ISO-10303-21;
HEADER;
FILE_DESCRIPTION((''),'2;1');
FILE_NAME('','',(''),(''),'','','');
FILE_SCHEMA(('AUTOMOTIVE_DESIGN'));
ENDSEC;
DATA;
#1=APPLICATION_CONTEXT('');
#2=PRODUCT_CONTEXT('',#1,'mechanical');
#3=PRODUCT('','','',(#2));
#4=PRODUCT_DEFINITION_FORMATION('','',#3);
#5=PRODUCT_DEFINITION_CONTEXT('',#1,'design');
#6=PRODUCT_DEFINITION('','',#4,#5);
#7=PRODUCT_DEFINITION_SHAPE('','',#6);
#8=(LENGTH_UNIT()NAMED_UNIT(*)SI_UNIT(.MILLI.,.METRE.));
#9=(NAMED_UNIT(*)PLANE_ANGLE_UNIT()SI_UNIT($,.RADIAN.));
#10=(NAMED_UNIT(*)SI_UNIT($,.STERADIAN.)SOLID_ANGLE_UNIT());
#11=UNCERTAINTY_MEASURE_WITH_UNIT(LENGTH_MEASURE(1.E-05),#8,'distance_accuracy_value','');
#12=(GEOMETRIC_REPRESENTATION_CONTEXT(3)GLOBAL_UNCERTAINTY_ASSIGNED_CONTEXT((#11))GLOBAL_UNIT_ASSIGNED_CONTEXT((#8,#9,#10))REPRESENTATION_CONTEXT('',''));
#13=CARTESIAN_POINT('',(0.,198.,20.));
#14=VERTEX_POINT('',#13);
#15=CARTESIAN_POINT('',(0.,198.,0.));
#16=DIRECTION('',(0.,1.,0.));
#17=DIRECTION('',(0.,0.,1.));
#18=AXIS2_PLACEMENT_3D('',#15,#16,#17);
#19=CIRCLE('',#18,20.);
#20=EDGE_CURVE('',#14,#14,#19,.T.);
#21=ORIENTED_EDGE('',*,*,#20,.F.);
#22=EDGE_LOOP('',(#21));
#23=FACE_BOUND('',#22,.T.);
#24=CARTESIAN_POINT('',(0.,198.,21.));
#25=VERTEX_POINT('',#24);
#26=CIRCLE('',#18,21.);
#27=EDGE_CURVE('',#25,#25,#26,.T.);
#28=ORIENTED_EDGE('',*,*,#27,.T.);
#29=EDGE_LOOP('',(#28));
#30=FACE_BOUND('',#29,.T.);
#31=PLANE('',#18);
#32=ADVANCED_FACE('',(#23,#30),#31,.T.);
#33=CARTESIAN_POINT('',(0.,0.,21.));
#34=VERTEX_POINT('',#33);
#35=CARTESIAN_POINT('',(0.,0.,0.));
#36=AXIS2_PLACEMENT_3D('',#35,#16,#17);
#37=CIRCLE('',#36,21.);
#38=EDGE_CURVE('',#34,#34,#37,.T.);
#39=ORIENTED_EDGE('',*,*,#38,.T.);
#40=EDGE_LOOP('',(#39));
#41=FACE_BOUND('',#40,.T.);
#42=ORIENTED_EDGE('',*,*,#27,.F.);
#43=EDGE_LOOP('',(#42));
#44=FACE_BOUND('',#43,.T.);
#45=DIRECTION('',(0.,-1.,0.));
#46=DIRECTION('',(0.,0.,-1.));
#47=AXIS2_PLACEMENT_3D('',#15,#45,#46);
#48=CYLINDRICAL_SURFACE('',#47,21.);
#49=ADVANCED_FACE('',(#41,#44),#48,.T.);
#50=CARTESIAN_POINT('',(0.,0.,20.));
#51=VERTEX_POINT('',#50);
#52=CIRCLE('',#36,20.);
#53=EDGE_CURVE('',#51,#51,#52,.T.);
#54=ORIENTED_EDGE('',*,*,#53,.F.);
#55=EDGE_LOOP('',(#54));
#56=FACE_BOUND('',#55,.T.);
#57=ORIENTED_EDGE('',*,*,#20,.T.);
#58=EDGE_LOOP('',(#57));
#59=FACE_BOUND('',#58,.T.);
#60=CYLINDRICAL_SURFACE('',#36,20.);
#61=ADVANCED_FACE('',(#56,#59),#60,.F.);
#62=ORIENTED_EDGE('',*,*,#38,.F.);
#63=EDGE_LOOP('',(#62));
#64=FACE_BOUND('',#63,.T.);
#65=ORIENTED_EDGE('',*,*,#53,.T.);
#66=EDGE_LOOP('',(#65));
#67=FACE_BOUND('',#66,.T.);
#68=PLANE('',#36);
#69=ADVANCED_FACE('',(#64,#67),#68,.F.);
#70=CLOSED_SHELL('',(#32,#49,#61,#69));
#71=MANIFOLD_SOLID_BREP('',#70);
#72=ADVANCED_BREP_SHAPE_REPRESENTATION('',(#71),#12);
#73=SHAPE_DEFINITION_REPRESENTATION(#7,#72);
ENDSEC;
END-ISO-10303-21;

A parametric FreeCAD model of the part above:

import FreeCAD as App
import Part
import Sketcher

V = App.Vector
Q = App.Units.Quantity

doc = App.newDocument("Part")
params = doc.addObject("Spreadsheet::Sheet", "Params")
for row, (alias, value) in enumerate([
    ("sketch1_diameter", "42 mm"),
    ("pad1_length", "198 mm"),
    ("sketch2_diameter", "40 mm"),
    ("pocket1_length", "198 mm"),
], start=1):
    params.set(f"A{row}", alias)
    params.set(f"B{row}", "=" + value)
    params.setAlias(f"B{row}", alias)

body = doc.addObject("PartDesign::Body", "Body")

# Sketch on XZ plane
sketch1 = body.newObject("Sketcher::SketchObject", "Sketch")
sketch1.AttachmentSupport = (doc.getObject("XZ_Plane"), [""])
sketch1.MapMode = "FlatFace"
sketch1.addGeometry(Part.Circle(V(0, 0, 0), V(0, 0, 1), 21), False)
sketch1.addConstraint([
    Sketcher.Constraint("Coincident", 0, 3, -1, 1),
    Sketcher.Constraint("Diameter", 0, Q("42 mm")),
])
sketch1.setExpression("Constraints[1]", "Params.sketch1_diameter")
pad1 = body.newObject("PartDesign::Pad", "Pad")
pad1.Profile = sketch1
pad1.setExpression("Length", "Params.pad1_length")
pad1.Reversed = True

# Sketch on XZ plane
sketch2 = body.newObject("Sketcher::SketchObject", "Sketch001")
sketch2.AttachmentSupport = (doc.getObject("XZ_Plane"), [""])
sketch2.MapMode = "FlatFace"
sketch2.AttachmentOffset = App.Placement(V(0, 0, -198), App.Rotation())
sketch2.addGeometry(Part.Circle(V(0, 0, 0), V(0, 0, 1), 20), False)
sketch2.addConstraint([
    Sketcher.Constraint("Coincident", 0, 3, -1, 1),
    Sketcher.Constraint("Diameter", 0, Q("40 mm")),
])
sketch2.setExpression("Constraints[1]", "Params.sketch2_diameter")
pocket1 = body.newObject("PartDesign::Pocket", "Pocket")
pocket1.Profile = sketch2
pocket1.setExpression("Length", "Params.pocket1_length")
pocket1.Reversed = True

doc.recompute()
